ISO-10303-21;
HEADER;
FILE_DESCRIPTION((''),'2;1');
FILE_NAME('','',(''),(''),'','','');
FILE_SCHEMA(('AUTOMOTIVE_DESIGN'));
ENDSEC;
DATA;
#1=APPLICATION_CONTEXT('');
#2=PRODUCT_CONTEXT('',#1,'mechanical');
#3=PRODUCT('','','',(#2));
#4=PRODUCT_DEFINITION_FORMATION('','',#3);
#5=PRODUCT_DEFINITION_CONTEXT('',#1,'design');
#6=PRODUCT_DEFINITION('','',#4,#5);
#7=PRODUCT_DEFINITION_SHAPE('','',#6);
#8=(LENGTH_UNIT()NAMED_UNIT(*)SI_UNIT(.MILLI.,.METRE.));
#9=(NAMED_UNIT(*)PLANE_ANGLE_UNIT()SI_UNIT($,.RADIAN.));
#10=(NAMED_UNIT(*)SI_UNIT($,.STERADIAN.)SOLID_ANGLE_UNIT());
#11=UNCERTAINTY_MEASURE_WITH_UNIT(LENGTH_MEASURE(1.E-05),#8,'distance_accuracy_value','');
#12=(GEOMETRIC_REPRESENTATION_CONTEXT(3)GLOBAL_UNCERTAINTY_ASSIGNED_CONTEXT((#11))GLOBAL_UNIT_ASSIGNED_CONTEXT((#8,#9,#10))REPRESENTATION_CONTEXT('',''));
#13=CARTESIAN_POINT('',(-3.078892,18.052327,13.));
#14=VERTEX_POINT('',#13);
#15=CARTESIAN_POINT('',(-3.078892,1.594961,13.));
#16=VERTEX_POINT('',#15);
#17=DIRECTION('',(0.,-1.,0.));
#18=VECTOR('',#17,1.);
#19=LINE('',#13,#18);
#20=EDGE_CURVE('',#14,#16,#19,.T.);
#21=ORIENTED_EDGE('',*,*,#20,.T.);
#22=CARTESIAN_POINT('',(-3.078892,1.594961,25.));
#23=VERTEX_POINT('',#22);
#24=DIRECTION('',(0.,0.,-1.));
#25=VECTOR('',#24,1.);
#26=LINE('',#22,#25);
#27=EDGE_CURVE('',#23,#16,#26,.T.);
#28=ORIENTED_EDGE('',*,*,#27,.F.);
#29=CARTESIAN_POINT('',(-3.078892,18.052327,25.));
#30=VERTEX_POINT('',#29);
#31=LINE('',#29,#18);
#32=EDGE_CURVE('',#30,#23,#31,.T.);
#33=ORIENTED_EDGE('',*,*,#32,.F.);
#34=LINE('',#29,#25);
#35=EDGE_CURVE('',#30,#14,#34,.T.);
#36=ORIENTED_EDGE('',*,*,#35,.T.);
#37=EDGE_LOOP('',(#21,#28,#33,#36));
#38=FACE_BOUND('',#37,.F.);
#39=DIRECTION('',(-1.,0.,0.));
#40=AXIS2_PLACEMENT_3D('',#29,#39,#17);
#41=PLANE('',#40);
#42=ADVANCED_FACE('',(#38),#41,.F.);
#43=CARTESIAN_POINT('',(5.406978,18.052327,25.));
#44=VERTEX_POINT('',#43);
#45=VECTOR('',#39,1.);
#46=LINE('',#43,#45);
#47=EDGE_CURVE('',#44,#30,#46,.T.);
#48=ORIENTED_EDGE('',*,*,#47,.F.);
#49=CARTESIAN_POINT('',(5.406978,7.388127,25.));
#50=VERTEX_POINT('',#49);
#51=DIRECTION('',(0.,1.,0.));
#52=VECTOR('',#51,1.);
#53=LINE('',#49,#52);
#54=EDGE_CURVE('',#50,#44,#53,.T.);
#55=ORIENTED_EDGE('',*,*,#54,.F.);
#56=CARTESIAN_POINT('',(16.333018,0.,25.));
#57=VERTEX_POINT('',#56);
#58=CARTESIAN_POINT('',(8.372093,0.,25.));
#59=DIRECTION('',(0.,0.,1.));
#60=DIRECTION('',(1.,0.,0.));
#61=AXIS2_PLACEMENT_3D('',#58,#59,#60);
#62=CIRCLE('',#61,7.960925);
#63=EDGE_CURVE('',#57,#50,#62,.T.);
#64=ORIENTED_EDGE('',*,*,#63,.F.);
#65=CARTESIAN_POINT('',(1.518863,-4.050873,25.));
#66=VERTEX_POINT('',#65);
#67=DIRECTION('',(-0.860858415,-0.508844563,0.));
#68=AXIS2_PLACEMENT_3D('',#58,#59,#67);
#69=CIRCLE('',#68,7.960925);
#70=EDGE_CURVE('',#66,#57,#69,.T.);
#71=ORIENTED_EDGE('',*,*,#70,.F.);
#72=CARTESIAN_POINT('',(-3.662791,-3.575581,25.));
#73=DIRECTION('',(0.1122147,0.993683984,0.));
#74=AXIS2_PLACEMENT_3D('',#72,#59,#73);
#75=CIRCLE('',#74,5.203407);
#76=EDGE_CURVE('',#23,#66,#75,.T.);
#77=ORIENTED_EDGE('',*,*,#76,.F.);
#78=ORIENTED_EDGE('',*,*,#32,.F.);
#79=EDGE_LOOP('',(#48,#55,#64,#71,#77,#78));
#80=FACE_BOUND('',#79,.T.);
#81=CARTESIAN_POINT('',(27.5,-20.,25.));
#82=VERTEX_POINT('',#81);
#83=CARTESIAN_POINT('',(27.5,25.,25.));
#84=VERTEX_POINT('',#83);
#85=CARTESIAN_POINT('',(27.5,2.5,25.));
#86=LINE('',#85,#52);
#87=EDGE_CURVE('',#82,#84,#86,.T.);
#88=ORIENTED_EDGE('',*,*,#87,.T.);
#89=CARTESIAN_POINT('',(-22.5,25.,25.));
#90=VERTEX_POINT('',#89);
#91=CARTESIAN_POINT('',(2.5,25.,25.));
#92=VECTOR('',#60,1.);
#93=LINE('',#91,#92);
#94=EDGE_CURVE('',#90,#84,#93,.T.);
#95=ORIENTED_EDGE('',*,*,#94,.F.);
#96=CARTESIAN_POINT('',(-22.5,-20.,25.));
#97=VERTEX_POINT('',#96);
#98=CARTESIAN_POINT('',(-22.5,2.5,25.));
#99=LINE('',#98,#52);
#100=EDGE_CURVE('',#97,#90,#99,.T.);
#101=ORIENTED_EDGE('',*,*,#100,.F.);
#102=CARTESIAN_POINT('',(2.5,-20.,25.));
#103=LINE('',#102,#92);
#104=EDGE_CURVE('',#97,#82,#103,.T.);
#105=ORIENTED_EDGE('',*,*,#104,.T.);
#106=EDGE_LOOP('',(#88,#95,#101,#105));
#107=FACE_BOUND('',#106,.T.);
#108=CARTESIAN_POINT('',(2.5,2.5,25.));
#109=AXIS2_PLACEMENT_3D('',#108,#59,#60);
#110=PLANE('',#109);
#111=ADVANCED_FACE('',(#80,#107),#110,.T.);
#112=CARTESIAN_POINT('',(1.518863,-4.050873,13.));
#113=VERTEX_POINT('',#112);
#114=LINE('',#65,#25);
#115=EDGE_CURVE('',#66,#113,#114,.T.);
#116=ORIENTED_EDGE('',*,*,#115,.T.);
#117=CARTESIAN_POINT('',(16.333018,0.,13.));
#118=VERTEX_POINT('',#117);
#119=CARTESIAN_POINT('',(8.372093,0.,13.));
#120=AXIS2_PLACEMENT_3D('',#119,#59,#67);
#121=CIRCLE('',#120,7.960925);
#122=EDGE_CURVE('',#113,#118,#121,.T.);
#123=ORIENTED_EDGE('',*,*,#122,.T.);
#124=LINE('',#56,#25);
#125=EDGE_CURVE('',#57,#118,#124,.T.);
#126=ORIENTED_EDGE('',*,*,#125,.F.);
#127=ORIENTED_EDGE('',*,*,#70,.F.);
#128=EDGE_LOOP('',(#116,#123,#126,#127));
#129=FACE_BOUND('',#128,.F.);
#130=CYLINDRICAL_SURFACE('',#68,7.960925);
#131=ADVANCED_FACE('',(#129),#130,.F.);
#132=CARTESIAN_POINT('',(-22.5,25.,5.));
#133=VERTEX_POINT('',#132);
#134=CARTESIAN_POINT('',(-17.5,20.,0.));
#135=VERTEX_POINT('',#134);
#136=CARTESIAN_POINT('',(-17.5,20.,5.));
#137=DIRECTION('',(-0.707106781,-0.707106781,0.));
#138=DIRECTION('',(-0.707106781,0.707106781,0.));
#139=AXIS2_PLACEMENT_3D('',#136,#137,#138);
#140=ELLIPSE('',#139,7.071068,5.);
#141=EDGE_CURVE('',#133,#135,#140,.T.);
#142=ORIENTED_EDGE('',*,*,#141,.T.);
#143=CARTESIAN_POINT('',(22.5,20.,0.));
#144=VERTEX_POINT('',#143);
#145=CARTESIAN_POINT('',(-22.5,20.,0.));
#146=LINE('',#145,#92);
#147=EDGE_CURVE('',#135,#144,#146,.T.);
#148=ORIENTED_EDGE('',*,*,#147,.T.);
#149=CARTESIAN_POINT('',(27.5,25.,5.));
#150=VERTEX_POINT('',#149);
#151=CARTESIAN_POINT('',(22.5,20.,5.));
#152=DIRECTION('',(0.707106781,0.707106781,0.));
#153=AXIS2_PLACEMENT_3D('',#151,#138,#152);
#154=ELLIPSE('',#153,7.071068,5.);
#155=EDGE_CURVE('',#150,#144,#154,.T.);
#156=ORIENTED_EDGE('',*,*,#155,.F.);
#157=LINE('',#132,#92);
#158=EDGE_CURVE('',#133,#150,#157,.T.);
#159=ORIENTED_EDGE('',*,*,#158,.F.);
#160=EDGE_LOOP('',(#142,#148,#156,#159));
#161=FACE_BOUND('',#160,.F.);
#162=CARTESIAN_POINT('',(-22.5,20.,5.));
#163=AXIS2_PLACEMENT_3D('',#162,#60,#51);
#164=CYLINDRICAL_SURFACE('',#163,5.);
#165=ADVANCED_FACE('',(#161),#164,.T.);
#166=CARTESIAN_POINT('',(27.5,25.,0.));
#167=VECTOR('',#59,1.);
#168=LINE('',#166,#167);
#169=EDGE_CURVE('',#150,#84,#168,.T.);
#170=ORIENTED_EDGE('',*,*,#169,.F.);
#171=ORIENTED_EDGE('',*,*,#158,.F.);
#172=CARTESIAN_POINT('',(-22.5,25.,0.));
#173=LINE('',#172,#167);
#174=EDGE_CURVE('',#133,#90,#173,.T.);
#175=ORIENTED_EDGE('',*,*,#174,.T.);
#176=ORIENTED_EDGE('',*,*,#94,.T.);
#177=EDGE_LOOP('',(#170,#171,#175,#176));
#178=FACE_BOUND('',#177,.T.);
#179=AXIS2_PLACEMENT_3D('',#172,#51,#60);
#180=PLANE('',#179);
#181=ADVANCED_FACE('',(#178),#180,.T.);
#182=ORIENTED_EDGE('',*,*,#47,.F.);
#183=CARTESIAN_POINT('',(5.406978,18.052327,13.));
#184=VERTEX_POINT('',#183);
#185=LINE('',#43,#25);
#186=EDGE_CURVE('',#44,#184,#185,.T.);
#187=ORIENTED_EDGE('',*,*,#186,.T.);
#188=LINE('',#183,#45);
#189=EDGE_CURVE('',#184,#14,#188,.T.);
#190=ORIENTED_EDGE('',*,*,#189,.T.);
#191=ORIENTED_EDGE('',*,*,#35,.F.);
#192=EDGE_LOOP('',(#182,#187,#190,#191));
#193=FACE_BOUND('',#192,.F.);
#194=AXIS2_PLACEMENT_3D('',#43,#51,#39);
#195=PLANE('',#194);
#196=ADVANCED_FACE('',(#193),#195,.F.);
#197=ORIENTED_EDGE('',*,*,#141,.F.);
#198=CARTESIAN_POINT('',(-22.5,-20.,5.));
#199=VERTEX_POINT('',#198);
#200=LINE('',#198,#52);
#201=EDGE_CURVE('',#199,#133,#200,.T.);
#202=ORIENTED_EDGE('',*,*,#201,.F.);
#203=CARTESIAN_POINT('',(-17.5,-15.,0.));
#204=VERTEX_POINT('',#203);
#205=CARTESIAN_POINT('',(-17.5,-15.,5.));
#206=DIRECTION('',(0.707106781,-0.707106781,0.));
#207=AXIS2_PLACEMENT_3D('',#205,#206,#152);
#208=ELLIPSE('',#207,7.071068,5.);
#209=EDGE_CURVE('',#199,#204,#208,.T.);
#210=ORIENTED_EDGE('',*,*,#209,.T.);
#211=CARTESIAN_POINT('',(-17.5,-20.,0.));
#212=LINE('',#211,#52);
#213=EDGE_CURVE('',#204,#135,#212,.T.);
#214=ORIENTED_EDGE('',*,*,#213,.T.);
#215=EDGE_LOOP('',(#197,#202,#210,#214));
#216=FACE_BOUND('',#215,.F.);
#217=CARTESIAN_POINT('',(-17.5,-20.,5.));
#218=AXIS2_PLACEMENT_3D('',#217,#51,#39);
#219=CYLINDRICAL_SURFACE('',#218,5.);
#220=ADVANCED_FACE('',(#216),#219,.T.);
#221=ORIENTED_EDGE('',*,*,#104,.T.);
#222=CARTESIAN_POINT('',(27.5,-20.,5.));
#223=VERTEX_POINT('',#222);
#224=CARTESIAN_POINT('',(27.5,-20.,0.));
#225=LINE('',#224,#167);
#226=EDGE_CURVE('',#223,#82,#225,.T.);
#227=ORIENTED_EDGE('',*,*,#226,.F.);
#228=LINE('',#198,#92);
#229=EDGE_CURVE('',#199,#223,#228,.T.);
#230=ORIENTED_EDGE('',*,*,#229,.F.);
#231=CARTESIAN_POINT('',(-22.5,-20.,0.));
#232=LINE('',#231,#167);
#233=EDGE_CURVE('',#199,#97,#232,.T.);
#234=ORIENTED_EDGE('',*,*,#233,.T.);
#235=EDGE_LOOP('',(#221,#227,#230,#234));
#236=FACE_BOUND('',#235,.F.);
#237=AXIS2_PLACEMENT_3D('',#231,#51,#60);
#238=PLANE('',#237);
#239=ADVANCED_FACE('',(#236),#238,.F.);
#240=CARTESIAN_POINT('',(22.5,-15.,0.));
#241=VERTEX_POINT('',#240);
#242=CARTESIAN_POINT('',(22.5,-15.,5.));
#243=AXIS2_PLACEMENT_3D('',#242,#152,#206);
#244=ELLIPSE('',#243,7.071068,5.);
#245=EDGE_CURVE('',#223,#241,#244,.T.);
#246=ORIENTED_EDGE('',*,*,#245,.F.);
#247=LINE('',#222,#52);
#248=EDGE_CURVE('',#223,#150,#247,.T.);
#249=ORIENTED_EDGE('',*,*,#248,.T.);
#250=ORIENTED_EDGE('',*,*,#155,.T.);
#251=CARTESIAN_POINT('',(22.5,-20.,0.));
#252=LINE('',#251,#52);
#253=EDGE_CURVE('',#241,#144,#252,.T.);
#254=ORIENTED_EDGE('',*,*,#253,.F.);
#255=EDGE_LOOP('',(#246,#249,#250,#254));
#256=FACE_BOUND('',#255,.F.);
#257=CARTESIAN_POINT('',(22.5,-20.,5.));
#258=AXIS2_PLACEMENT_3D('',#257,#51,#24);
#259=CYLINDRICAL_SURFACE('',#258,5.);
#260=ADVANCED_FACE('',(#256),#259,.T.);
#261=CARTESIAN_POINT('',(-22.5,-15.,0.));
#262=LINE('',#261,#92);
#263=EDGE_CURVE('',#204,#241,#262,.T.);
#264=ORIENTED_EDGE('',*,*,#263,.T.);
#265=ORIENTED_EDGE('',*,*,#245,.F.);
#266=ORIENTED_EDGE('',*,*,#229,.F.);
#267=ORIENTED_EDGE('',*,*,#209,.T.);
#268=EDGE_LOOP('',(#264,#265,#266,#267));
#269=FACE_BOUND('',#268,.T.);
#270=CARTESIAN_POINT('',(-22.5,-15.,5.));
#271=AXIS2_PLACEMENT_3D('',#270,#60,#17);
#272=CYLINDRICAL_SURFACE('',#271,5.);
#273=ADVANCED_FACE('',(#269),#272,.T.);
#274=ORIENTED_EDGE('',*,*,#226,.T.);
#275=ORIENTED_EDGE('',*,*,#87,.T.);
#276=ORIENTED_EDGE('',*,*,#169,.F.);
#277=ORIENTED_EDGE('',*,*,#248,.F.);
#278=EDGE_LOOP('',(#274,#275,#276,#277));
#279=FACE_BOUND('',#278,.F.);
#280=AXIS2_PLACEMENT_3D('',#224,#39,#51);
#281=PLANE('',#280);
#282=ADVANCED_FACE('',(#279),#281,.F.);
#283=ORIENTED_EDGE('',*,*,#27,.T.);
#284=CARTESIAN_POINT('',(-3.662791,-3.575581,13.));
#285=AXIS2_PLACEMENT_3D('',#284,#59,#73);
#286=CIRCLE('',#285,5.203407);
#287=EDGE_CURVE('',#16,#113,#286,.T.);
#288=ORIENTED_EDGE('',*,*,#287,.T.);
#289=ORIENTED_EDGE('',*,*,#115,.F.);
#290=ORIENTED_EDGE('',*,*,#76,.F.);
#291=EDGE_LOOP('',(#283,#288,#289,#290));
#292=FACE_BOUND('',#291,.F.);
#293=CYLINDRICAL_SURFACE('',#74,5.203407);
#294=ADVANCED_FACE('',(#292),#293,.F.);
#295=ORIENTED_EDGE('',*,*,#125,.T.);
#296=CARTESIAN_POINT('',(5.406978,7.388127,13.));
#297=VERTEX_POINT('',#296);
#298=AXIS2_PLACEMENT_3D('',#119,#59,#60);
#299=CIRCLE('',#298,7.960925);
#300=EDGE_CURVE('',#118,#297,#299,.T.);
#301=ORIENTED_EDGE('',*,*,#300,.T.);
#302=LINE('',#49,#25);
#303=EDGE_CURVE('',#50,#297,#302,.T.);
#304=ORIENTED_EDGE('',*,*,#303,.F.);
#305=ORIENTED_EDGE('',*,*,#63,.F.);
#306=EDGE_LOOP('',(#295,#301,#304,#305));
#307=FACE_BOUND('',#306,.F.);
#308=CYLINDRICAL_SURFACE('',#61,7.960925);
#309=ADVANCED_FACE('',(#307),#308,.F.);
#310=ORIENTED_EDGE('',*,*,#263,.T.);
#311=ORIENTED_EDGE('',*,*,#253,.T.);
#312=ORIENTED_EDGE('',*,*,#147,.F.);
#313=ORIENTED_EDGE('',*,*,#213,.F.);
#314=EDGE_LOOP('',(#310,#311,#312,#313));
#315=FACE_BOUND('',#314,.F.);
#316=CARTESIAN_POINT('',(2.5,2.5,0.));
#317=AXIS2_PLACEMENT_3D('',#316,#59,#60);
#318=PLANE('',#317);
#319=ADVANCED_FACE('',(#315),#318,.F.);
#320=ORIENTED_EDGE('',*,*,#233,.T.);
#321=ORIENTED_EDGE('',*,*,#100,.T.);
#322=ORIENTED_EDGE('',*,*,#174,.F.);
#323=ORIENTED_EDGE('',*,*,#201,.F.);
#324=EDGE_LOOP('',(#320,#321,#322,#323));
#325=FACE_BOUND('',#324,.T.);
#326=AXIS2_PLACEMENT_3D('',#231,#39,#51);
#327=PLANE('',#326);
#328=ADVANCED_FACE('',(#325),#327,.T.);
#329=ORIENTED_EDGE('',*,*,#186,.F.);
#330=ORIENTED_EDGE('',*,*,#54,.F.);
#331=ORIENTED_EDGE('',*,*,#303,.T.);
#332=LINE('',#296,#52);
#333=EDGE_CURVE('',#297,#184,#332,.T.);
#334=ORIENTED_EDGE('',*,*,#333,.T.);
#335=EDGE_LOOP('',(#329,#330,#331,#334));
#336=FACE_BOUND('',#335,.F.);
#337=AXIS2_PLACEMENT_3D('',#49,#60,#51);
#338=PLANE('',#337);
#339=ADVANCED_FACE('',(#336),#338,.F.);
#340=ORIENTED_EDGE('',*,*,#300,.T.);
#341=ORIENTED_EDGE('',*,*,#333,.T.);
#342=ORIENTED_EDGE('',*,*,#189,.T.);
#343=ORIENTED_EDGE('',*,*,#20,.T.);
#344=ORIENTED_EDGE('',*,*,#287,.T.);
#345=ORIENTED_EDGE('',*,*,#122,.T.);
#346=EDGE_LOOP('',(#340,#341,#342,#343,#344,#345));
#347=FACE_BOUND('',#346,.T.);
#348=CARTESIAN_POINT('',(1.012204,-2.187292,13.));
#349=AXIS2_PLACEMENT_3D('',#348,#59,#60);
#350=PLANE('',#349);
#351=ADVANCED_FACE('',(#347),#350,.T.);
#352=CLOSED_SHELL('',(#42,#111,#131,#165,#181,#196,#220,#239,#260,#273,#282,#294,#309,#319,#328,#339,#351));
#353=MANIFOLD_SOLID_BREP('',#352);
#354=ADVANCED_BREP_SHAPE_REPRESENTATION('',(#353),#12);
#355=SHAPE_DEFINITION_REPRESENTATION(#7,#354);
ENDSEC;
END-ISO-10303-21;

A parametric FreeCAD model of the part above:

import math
import FreeCAD as App
import Part
import Sketcher
from FreeCAD import Vector


def edges_at(feature, points):
    """Names of the edges that pass closest to the given points."""
    edges = feature.Shape.Edges
    near = lambda p: min(range(len(edges)), key=lambda i: edges[i].distToShape(Part.Vertex(*p))[0])
    return sorted({f"Edge{near(p) + 1}" for p in points})


def add_polygon(sketch, points):
    """Adds a closed chain of lines whose ends are joined by coincident constraints."""
    first, n = sketch.GeometryCount, len(points)
    for a, b in zip(points, points[1:] + points[:1]):
        sketch.addGeometry(Part.LineSegment(App.Vector(*a, 0), App.Vector(*b, 0)), False)
    for i in range(n):
        sketch.addConstraint(Sketcher.Constraint("Coincident", first + i, 2, first + (i + 1) % n, 1))

doc = App.newDocument("Part")
params = doc.addObject("Spreadsheet::Sheet", "Params")
for row, (alias, value) in enumerate([
    ("sketch1_width", "50 mm"),
    ("sketch1_height", "45 mm"),
    ("pad1_length", "25 mm"),
    ("pocket1_length", "12 mm"),
    ("fillet_radius", "5 mm"),
], start=1):
    params.set(f"A{row}", alias)
    params.set(f"B{row}", "=" + value)
    params.setAlias(f"B{row}", alias)

body = doc.addObject("PartDesign::Body", "Body")

sketch1 = body.newObject("Sketcher::SketchObject", "Sketch")
sketch1.AttachmentSupport = (doc.getObject("XY_Plane"), [""])
sketch1.MapMode = "FlatFace"
add_polygon(sketch1, [(-22, 25), (-22, -20), (28, -20), (28, 25)])
sketch1.addConstraint([
    Sketcher.Constraint("Vertical", 0),
    Sketcher.Constraint("Horizontal", 1),
    Sketcher.Constraint("Vertical", 2),
    Sketcher.Constraint("Horizontal", 3),
    Sketcher.Constraint("DistanceX", 1, 1, 1, 2, 50.0),
    Sketcher.Constraint("DistanceY", 0, 2, 0, 1, 45.0),
    Sketcher.Constraint("DistanceY", 0, 2, -1, 1, 20.0),
    Sketcher.Constraint("DistanceX", 0, 2, -1, 1, 22.5),
])
sketch1.setExpression("Constraints[8]", "Params.sketch1_width")
sketch1.setExpression("Constraints[9]", "Params.sketch1_height")
pad1 = body.newObject("PartDesign::Pad", "Pad")
pad1.Profile = sketch1
pad1.setExpression("Length", "Params.pad1_length")

sketch2 = body.newObject("Sketcher::SketchObject", "Sketch001")
sketch2.AttachmentSupport = (doc.getObject("XY_Plane"), [""])
sketch2.MapMode = "FlatFace"
sketch2.AttachmentOffset = App.Placement(Vector(0, 0, 25), App.Rotation())
sketch2.addGeometry([
    Part.ArcOfCircle(Part.Circle(Vector(8, 0, 0), Vector(0, 0, 1), 8), math.radians(0), math.radians(112)),
    Part.LineSegment(Vector(5, 7, 0), Vector(5, 18, 0)),
    Part.LineSegment(Vector(5, 18, 0), Vector(-3, 18, 0)),
    Part.LineSegment(Vector(-3, 18, 0), Vector(-3, 2, 0)),
    Part.ArcOfCircle(Part.Circle(Vector(-4, -4, 0), Vector(0, 0, 1), 5), math.radians(84), math.radians(355)),
    Part.ArcOfCircle(Part.Circle(Vector(8, 0, 0), Vector(0, 0, 1), 8), math.radians(-149), math.radians(0)),
], False)
sketch2.addConstraint([
    Sketcher.Constraint("Coincident", 0, 2, 1, 1),
    Sketcher.Constraint("Coincident", 1, 2, 2, 1),
    Sketcher.Constraint("Coincident", 2, 2, 3, 1),
    Sketcher.Constraint("Coincident", 3, 2, 4, 1),
    Sketcher.Constraint("Coincident", 4, 2, 5, 1),
    Sketcher.Constraint("Tangent", 5, 2, 0, 1),
    Sketcher.Constraint("Vertical", 1),
    Sketcher.Constraint("Horizontal", 2),
    Sketcher.Constraint("Vertical", 3),
    Sketcher.Constraint("Equal", 0, 5),
    Sketcher.Constraint("PointOnObject", 0, 3, -1),
    Sketcher.Constraint("PointOnObject", 5, 2, -1),
    Sketcher.Constraint("DistanceY", 1, 1, 1, 2, 10.6642),
    Sketcher.Constraint("Radius", 0, 7.960925),
    Sketcher.Constraint("Radius", 4, 5.203407),
    Sketcher.Constraint("DistanceY", 4, 2, 0, 2, 11.439),
    Sketcher.Constraint("DistanceX", 2, 2, 2, 1, 8.48587),
    Sketcher.Constraint("DistanceX", 4, 3, 2, 2, 0.583899),
    Sketcher.Constraint("DistanceY", 3, 2, 3, 1, 16.457366),
    Sketcher.Constraint("DistanceX", 4, 3, -1, 1, 3.662791),
])
pocket1 = body.newObject("PartDesign::Pocket", "Pocket")
pocket1.Profile = sketch2
pocket1.setExpression("Length", "Params.pocket1_length")
doc.recompute()

fillet = body.newObject("PartDesign::Fillet", "Fillet")
fillet.Base = (pocket1, edges_at(pocket1, [
    (-22.5, 2.5, 0),
    (2.5, 25, 0),
    (2.5, -20, 0),
    (27.5, 2.5, 0),
]))
fillet.setExpression("Radius", "Params.fillet_radius")

doc.recompute()
